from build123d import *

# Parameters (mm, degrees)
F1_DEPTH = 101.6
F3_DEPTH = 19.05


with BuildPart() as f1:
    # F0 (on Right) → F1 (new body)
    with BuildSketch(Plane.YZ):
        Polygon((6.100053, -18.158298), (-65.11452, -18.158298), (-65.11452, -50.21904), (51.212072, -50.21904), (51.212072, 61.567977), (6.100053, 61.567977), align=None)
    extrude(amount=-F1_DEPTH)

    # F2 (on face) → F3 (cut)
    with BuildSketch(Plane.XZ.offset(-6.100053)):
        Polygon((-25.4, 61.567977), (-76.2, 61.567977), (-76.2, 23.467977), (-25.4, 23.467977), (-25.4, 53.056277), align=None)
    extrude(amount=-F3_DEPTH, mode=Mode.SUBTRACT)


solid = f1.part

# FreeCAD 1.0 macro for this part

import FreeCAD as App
import Part
import Sketcher
Q = App.Units.Quantity


def add_polygon(sketch, points):
    """Adds a closed chain of lines whose ends are joined by coincident constraints."""
    first, n = sketch.GeometryCount, len(points)
    for a, b in zip(points, points[1:] + points[:1]):
        sketch.addGeometry(Part.LineSegment(App.Vector(*a, 0), App.Vector(*b, 0)), False)
    for i in range(n):
        sketch.addConstraint(Sketcher.Constraint("Coincident", first + i, 2, first + (i + 1) % n, 1))

doc = App.newDocument("Part")
body = doc.addObject("PartDesign::Body", "Body")

# Sketch on YZ plane
sketch1 = body.newObject("Sketcher::SketchObject", "Sketch")
sketch1.AttachmentSupport = (doc.getObject("YZ_Plane"), [""])
sketch1.MapMode = "FlatFace"
add_polygon(sketch1, [(6, -18), (-65, -18), (-65, -50), (51, -50), (51, 62), (6, 62)])  # lines 0-5
sketch1.addConstraint(Sketcher.Constraint("Horizontal", 0))
sketch1.addConstraint(Sketcher.Constraint("Vertical", 1))
sketch1.addConstraint(Sketcher.Constraint("Horizontal", 2))
sketch1.addConstraint(Sketcher.Constraint("Vertical", 3))
sketch1.addConstraint(Sketcher.Constraint("Horizontal", 4))
sketch1.addConstraint(Sketcher.Constraint("Vertical", 5))
sketch1.addConstraint(Sketcher.Constraint("DistanceX", 4, 2, 4, 1, Q("45.112019 mm")))
sketch1.addConstraint(Sketcher.Constraint("DistanceX", 0, 2, 0, 1, Q("71.214573 mm")))
sketch1.addConstraint(Sketcher.Constraint("DistanceY", 1, 2, 1, 1, Q("32.060742 mm")))
sketch1.addConstraint(Sketcher.Constraint("DistanceY", 3, 1, 3, 2, Q("111.787017 mm")))
sketch1.addConstraint(Sketcher.Constraint("DistanceX", 0, 2, -1, 1, Q("65.11452 mm")))
sketch1.addConstraint(Sketcher.Constraint("DistanceY", 1, 2, -1, 1, Q("50.21904 mm")))
pad1 = body.newObject("PartDesign::Pad", "Pad")
pad1.Profile = sketch1
pad1.Length = Q("4 in")
pad1.Reversed = True

# Sketch on XZ plane
sketch2 = body.newObject("Sketcher::SketchObject", "Sketch001")
sketch2.AttachmentSupport = (doc.getObject("XZ_Plane"), [""])
sketch2.MapMode = "FlatFace"
sketch2.AttachmentOffset = App.Placement(App.Vector(0, 0, -6.100053), App.Rotation())
add_polygon(sketch2, [(-25, 62), (-76, 62), (-76, 23), (-25, 23)])  # lines 0-3
sketch2.addConstraint(Sketcher.Constraint("Horizontal", 0))
sketch2.addConstraint(Sketcher.Constraint("Vertical", 1))
sketch2.addConstraint(Sketcher.Constraint("Horizontal", 2))
sketch2.addConstraint(Sketcher.Constraint("Vertical", 3))
sketch2.addConstraint(Sketcher.Constraint("DistanceX", 0, 2, 0, 1, Q("2 in")))
sketch2.addConstraint(Sketcher.Constraint("DistanceY", 1, 2, 1, 1, Q("1.5 in")))
sketch2.addConstraint(Sketcher.Constraint("DistanceX", 0, 2, -1, 1, Q("3 in")))
sketch2.addConstraint(Sketcher.Constraint("DistanceY", -1, 1, 0, 2, Q("61.567977 mm")))
pocket1 = body.newObject("PartDesign::Pocket", "Pocket")
pocket1.Profile = sketch2
pocket1.Length = Q("0.75 in")

doc.recompute()
